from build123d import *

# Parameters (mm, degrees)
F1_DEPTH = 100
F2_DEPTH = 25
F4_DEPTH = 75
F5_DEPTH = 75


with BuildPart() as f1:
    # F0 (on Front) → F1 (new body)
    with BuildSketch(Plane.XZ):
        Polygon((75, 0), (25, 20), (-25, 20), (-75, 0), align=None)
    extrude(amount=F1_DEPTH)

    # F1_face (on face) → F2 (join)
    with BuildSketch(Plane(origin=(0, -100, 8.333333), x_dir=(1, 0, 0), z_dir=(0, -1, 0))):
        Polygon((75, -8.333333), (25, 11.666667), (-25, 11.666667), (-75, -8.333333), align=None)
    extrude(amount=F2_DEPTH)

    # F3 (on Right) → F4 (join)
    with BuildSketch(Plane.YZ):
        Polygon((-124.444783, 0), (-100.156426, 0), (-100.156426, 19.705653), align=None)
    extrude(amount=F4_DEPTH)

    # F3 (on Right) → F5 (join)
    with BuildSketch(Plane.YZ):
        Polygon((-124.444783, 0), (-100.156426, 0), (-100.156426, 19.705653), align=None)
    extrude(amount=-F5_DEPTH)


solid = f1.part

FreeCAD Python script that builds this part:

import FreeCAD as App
import Part
import Sketcher
from FreeCAD import Vector

doc = App.newDocument("Part")
params = doc.addObject("Spreadsheet::Sheet", "Params")
for row, (alias, value) in enumerate([
    ("sketch1_width", "50 mm"),
    ("sketch1_width2", "150 mm"),
    ("pad1_length", "100 mm"),
    ("sketch2_width", "50 mm"),
    ("sketch2_width2", "150 mm"),
    ("pad2_length", "25 mm"),
    ("pad3_length", "75 mm"),
    ("pad4_length", "75 mm"),
], start=1):
    params.set(f"A{row}", alias)
    params.set(f"B{row}", "=" + value)
    params.setAlias(f"B{row}", alias)

body = doc.addObject("PartDesign::Body", "Body")

# Sketch on XZ plane
sketch1 = body.newObject("Sketcher::SketchObject", "Sketch")
sketch1.AttachmentSupport = (doc.getObject("XZ_Plane"), [""])
sketch1.MapMode = "FlatFace"
sketch1.addGeometry([
    Part.LineSegment(Vector(75, 0, 0), Vector(25, 20, 0)),
    Part.LineSegment(Vector(25, 20, 0), Vector(-25, 20, 0)),
    Part.LineSegment(Vector(-25, 20, 0), Vector(-75, 0, 0)),
    Part.LineSegment(Vector(-75, 0, 0), Vector(75, 0, 0)),
], False)
sketch1.addConstraint([
    Sketcher.Constraint("Coincident", 0, 2, 1, 1),
    Sketcher.Constraint("Coincident", 1, 2, 2, 1),
    Sketcher.Constraint("Coincident", 2, 2, 3, 1),
    Sketcher.Constraint("Coincident", 3, 2, 0, 1),
    Sketcher.Constraint("Horizontal", 1),
    Sketcher.Constraint("Horizontal", 3),
    Sketcher.Constraint("Symmetric", 2, 2, 3, 2, -1, 1),
    Sketcher.Constraint("Equal", 0, 2),
    Sketcher.Constraint("DistanceX", 1, 2, 1, 1, 50.0),
    Sketcher.Constraint("DistanceX", 3, 1, 3, 2, 150.0),
    Sketcher.Constraint("DistanceY", -1, 1, 0, 2, 20.0),
])
sketch1.setExpression("Constraints[8]", "Params.sketch1_width")
sketch1.setExpression("Constraints[9]", "Params.sketch1_width2")
pad1 = body.newObject("PartDesign::Pad", "Pad")
pad1.Profile = sketch1
pad1.setExpression("Length", "Params.pad1_length")

# Sketch on XZ plane
sketch2 = body.newObject("Sketcher::SketchObject", "Sketch001")
sketch2.AttachmentSupport = (doc.getObject("XZ_Plane"), [""])
sketch2.MapMode = "FlatFace"
sketch2.AttachmentOffset = App.Placement(Vector(0, 0, 100), App.Rotation())
sketch2.addGeometry([
    Part.LineSegment(Vector(75, 0, 0), Vector(25, 20, 0)),
    Part.LineSegment(Vector(25, 20, 0), Vector(-25, 20, 0)),
    Part.LineSegment(Vector(-25, 20, 0), Vector(-75, 0, 0)),
    Part.LineSegment(Vector(-75, 0, 0), Vector(75, 0, 0)),
], False)
sketch2.addConstraint([
    Sketcher.Constraint("Coincident", 0, 2, 1, 1),
    Sketcher.Constraint("Coincident", 1, 2, 2, 1),
    Sketcher.Constraint("Coincident", 2, 2, 3, 1),
    Sketcher.Constraint("Coincident", 3, 2, 0, 1),
    Sketcher.Constraint("Horizontal", 1),
    Sketcher.Constraint("Horizontal", 3),
    Sketcher.Constraint("Symmetric", 2, 2, 3, 2, -1, 1),
    Sketcher.Constraint("Equal", 0, 2),
    Sketcher.Constraint("DistanceX", 1, 2, 1, 1, 50.0),
    Sketcher.Constraint("DistanceX", 3, 1, 3, 2, 150.0),
    Sketcher.Constraint("DistanceY", -1, 1, 0, 2, 20.0),
])
sketch2.setExpression("Constraints[8]", "Params.sketch2_width")
sketch2.setExpression("Constraints[9]", "Params.sketch2_width2")
pad2 = body.newObject("PartDesign::Pad", "Pad001")
pad2.Profile = sketch2
pad2.setExpression("Length", "Params.pad2_length")

# Sketch on YZ plane
sketch3 = body.newObject("Sketcher::SketchObject", "Sketch002")
sketch3.AttachmentSupport = (doc.getObject("YZ_Plane"), [""])
sketch3.MapMode = "FlatFace"
sketch3.addGeometry([
    Part.LineSegment(Vector(-124, 0, 0), Vector(-100, 0, 0)),
    Part.LineSegment(Vector(-100, 0, 0), Vector(-100, 20, 0)),
    Part.LineSegment(Vector(-100, 20, 0), Vector(-124, 0, 0)),
], False)
sketch3.addConstraint([
    Sketcher.Constraint("Coincident", 0, 2, 1, 1),
    Sketcher.Constraint("Coincident", 1, 2, 2, 1),
    Sketcher.Constraint("Coincident", 2, 2, 0, 1),
    Sketcher.Constraint("Horizontal", 0),
    Sketcher.Constraint("Vertical", 1),
    Sketcher.Constraint("PointOnObject", 0, 2, -1),
    Sketcher.Constraint("Distance", 2, 31.276781),
    Sketcher.Constraint("DistanceX", 0, 1, 0, 2, 24.288357),
    Sketcher.Constraint("DistanceX", 0, 2, -1, 1, 100.156426),
])
pad3 = body.newObject("PartDesign::Pad", "Pad002")
pad3.Profile = sketch3
pad3.setExpression("Length", "Params.pad3_length")

# Sketch on YZ plane
sketch4 = body.newObject("Sketcher::SketchObject", "Sketch003")
sketch4.AttachmentSupport = (doc.getObject("YZ_Plane"), [""])
sketch4.MapMode = "FlatFace"
sketch4.addGeometry([
    Part.LineSegment(Vector(-124, 0, 0), Vector(-100, 0, 0)),
    Part.LineSegment(Vector(-100, 0, 0), Vector(-100, 20, 0)),
    Part.LineSegment(Vector(-100, 20, 0), Vector(-124, 0, 0)),
], False)
sketch4.addConstraint([
    Sketcher.Constraint("Coincident", 0, 2, 1, 1),
    Sketcher.Constraint("Coincident", 1, 2, 2, 1),
    Sketcher.Constraint("Coincident", 2, 2, 0, 1),
    Sketcher.Constraint("Horizontal", 0),
    Sketcher.Constraint("Vertical", 1),
    Sketcher.Constraint("PointOnObject", 0, 2, -1),
    Sketcher.Constraint("Distance", 2, 31.276781),
    Sketcher.Constraint("DistanceX", 0, 1, 0, 2, 24.288357),
    Sketcher.Constraint("DistanceX", 0, 2, -1, 1, 100.156426),
])
pad4 = body.newObject("PartDesign::Pad", "Pad003")
pad4.Profile = sketch4
pad4.setExpression("Length", "Params.pad4_length")
pad4.Reversed = True

doc.recompute()
